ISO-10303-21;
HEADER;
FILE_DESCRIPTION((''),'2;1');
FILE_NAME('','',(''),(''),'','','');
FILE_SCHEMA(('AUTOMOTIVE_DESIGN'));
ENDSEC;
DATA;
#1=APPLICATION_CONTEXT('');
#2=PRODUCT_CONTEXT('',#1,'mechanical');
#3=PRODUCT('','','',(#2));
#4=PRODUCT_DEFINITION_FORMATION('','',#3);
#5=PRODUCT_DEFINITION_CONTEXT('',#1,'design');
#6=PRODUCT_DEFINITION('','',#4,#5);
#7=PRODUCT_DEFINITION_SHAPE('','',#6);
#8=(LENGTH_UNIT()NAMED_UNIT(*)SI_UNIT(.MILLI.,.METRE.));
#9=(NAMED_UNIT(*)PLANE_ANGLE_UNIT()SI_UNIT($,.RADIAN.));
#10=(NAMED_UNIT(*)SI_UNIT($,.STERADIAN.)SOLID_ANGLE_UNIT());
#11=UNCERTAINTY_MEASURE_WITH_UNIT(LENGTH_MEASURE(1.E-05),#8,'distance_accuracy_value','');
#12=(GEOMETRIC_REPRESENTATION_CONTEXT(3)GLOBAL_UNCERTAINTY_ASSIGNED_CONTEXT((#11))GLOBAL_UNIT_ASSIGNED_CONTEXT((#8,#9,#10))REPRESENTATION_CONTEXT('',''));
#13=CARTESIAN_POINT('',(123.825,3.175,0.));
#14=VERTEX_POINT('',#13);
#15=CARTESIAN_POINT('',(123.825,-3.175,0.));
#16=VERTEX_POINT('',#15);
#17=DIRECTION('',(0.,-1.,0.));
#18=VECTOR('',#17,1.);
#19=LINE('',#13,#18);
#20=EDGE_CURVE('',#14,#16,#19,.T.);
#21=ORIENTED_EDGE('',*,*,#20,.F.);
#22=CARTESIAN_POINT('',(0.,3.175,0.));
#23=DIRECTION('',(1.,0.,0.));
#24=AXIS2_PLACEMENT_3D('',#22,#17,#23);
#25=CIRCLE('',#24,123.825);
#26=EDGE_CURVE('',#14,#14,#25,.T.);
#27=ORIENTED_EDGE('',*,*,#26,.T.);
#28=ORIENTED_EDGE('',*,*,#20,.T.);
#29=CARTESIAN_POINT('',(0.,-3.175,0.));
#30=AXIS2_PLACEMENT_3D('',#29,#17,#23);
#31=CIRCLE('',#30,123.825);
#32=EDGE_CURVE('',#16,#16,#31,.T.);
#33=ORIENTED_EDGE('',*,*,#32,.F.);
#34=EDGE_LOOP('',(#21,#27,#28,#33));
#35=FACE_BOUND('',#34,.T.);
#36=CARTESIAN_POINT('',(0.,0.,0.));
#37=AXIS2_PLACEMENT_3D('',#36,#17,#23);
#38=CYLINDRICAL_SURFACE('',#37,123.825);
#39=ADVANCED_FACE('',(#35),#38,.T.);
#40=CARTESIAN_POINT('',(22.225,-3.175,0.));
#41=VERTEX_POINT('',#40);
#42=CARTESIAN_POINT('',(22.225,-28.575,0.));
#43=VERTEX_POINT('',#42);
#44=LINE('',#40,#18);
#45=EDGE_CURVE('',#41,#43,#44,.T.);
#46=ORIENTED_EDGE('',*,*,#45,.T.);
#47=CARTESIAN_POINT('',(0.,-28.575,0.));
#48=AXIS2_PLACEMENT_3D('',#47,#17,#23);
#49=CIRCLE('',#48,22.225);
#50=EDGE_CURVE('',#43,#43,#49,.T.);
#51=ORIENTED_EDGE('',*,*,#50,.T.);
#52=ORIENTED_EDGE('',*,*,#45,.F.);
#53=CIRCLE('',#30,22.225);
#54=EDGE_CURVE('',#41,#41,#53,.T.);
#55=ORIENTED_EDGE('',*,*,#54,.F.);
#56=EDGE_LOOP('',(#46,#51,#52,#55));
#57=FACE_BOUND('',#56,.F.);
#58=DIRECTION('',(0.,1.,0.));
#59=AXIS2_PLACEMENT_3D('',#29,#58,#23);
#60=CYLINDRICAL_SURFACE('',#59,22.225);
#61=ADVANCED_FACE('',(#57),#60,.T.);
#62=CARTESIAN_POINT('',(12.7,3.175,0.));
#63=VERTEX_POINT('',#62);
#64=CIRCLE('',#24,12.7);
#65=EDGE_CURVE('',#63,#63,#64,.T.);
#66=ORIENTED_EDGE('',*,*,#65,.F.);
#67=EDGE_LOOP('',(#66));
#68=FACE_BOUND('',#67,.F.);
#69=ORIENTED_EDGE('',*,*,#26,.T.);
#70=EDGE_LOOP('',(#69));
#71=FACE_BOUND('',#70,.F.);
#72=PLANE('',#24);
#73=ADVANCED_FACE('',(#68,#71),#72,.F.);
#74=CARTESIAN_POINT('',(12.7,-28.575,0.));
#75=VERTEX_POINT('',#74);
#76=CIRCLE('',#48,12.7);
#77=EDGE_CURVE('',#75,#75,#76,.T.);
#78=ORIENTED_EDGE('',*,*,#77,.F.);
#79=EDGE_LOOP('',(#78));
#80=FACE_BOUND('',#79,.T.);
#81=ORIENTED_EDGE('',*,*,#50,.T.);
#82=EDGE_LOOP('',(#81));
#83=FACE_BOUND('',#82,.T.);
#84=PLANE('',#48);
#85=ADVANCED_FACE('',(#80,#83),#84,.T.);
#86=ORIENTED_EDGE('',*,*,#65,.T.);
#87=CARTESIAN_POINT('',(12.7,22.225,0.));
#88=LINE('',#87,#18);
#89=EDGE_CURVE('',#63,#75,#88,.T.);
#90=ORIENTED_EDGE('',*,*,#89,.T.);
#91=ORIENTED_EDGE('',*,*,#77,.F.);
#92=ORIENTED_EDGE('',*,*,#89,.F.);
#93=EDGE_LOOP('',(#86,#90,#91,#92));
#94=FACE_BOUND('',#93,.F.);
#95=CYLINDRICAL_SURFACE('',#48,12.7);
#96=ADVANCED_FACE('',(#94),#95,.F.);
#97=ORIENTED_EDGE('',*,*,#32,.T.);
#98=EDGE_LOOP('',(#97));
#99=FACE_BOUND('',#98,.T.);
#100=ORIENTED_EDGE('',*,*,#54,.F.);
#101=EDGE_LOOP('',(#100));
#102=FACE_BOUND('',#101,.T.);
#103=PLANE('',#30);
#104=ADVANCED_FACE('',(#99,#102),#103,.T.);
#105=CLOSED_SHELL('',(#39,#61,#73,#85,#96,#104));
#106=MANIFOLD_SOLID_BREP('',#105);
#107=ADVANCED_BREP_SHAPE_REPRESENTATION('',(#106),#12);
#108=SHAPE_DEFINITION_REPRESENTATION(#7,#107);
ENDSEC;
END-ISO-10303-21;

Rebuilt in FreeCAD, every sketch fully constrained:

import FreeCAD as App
import Part
import Sketcher
Q = App.Units.Quantity

doc = App.newDocument("Part")
body = doc.addObject("PartDesign::Body", "Body")

sketch1 = body.newObject("Sketcher::SketchObject", "Sketch")
sketch1.AttachmentSupport = (doc.getObject("XZ_Plane"), [""])
sketch1.MapMode = "FlatFace"
sketch1.addGeometry(Part.Circle(App.Vector(0, 0, 0), App.Vector(0, 0, 1), 123.825), False)
sketch1.addConstraint([
    Sketcher.Constraint("Coincident", 0, 3, -1, 1),
    Sketcher.Constraint("Diameter", 0, Q("9.75 in")),
])
pad1 = body.newObject("PartDesign::Pad", "Pad")
pad1.Profile = sketch1
pad1.Length = Q("0.25 in")
pad1.Midplane = True

sketch2 = body.newObject("Sketcher::SketchObject", "Sketch001")
sketch2.AttachmentSupport = (doc.getObject("XZ_Plane"), [""])
sketch2.MapMode = "FlatFace"
sketch2.AttachmentOffset = App.Placement(App.Vector(0, 0, 0.125 * 25.4), App.Rotation())
sketch2.addGeometry(Part.Circle(App.Vector(0, 0, 0), App.Vector(0, 0, 1), 22.225), False)
sketch2.addConstraint([
    Sketcher.Constraint("Coincident", 0, 3, -1, 1),
    Sketcher.Constraint("Diameter", 0, Q("1.75 in")),
])
pad2 = body.newObject("PartDesign::Pad", "Pad001")
pad2.Profile = sketch2
pad2.Length = Q("1 in")

sketch3 = body.newObject("Sketcher::SketchObject", "Sketch002")
sketch3.AttachmentSupport = (doc.getObject("XZ_Plane"), [""])
sketch3.MapMode = "FlatFace"
sketch3.AttachmentOffset = App.Placement(App.Vector(0, 0, 1.125 * 25.4), App.Rotation())
sketch3.addGeometry(Part.Circle(App.Vector(0, 0, 0), App.Vector(0, 0, 1), 12.7), False)
sketch3.addConstraint([
    Sketcher.Constraint("Coincident", 0, 3, -1, 1),
    Sketcher.Constraint("Diameter", 0, Q("1 in")),
])
pocket1 = body.newObject("PartDesign::Pocket", "Pocket")
pocket1.Profile = sketch3
pocket1.Length = Q("4 in")
pocket1.Midplane = True

doc.recompute()
